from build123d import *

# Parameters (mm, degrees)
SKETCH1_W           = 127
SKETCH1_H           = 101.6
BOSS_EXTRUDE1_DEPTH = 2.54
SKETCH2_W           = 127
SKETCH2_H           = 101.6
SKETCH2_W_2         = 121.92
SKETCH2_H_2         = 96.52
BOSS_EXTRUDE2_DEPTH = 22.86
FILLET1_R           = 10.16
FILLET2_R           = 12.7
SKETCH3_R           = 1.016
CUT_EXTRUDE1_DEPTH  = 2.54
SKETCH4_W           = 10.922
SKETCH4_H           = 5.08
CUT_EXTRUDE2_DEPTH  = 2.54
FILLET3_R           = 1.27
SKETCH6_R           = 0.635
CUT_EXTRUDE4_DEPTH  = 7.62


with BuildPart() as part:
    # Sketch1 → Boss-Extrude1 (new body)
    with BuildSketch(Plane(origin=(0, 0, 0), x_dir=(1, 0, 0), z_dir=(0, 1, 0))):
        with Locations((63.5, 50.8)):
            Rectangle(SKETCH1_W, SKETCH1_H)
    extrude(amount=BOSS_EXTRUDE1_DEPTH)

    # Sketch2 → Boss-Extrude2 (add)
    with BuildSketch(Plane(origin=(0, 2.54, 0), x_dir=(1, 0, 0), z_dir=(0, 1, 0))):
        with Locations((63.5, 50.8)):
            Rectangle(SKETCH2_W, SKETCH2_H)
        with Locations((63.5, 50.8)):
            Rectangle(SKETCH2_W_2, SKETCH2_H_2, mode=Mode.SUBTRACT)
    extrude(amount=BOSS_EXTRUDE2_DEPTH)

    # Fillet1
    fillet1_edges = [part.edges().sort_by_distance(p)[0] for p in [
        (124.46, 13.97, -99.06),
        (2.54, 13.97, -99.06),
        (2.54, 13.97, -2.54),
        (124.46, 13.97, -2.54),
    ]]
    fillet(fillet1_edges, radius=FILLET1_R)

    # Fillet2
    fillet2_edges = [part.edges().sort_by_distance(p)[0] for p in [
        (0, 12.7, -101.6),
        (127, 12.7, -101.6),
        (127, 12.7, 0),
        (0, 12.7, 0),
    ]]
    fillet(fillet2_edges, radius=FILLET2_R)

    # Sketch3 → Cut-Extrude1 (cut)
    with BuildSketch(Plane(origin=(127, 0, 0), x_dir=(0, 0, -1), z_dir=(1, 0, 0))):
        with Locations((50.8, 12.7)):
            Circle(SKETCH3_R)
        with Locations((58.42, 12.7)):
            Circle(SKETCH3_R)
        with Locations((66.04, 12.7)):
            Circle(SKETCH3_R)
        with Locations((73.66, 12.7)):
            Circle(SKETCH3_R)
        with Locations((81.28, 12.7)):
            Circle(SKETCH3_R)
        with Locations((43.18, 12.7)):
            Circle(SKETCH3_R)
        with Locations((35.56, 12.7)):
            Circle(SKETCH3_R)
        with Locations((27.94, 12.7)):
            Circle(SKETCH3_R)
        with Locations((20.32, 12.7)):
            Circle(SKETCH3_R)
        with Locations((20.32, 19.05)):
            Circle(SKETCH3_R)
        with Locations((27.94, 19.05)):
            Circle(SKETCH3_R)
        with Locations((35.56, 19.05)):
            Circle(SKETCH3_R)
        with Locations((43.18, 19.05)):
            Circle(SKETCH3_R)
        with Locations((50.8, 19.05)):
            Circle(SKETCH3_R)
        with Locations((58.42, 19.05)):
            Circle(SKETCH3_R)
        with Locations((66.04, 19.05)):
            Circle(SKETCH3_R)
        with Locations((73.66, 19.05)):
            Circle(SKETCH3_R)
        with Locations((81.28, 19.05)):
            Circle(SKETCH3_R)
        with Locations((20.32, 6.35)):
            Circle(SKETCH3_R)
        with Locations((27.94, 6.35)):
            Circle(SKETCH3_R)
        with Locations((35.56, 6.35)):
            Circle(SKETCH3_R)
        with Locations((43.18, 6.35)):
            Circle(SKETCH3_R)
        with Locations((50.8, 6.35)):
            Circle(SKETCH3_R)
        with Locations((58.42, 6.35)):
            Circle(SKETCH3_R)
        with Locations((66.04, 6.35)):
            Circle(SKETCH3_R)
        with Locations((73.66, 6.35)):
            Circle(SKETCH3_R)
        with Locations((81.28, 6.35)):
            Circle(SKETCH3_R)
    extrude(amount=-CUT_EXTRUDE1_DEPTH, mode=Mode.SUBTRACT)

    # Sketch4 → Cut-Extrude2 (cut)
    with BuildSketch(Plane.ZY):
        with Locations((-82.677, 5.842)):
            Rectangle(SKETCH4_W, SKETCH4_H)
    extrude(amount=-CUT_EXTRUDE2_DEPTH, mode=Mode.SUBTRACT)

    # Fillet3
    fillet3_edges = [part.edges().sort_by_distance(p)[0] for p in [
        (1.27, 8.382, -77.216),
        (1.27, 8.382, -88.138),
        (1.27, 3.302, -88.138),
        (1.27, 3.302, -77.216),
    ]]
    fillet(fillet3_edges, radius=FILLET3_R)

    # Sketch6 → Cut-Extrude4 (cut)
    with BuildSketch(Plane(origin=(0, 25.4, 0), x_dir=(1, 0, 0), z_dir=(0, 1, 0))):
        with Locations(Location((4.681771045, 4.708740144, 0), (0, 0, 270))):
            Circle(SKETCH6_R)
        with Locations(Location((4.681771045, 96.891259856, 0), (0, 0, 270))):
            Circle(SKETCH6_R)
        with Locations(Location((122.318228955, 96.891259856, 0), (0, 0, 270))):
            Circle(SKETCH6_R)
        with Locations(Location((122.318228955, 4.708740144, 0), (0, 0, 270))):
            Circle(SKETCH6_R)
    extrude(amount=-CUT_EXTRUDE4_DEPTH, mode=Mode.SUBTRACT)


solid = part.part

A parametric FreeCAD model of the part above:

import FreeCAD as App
import Part
import Sketcher
Q = App.Units.Quantity


def edges_at(feature, points):
    """Names of the edges that pass closest to the given points."""
    edges = feature.Shape.Edges
    near = lambda p: min(range(len(edges)), key=lambda i: edges[i].distToShape(Part.Vertex(*p))[0])
    return sorted({f"Edge{near(p) + 1}" for p in points})

doc = App.newDocument("Part")
body = doc.addObject("PartDesign::Body", "Body")

# Sketch on XZ plane
sketch1 = body.newObject("Sketcher::SketchObject", "Sketch")
sketch1.AttachmentSupport = (doc.getObject("XZ_Plane"), [""])
sketch1.MapMode = "FlatFace"
sketch1.addGeometry(Part.LineSegment(App.Vector(0, -101.6, 0), App.Vector(0, 0, 0)), False)
sketch1.addGeometry(Part.LineSegment(App.Vector(0, 0, 0), App.Vector(127, 0, 0)), False)
sketch1.addGeometry(Part.LineSegment(App.Vector(127, 0, 0), App.Vector(127, -101.6, 0)), False)
sketch1.addGeometry(Part.LineSegment(App.Vector(127, -101.6, 0), App.Vector(0, -101.6, 0)), False)
sketch1.addConstraint(Sketcher.Constraint("Coincident", 0, 2, 1, 1))
sketch1.addConstraint(Sketcher.Constraint("Coincident", 1, 2, 2, 1))
sketch1.addConstraint(Sketcher.Constraint("Coincident", 2, 2, 3, 1))
sketch1.addConstraint(Sketcher.Constraint("Coincident", 3, 2, 0, 1))
sketch1.addConstraint(Sketcher.Constraint("Vertical", 0))
sketch1.addConstraint(Sketcher.Constraint("Horizontal", 1))
sketch1.addConstraint(Sketcher.Constraint("Vertical", 2))
sketch1.addConstraint(Sketcher.Constraint("Horizontal", 3))
sketch1.addConstraint(Sketcher.Constraint("Coincident", 0, 2, -1, 1))
sketch1.addConstraint(Sketcher.Constraint("DistanceX", 1, 1, 1, 2, Q("5 in")))
sketch1.addConstraint(Sketcher.Constraint("DistanceY", 0, 1, 0, 2, Q("4 in")))
pad1 = body.newObject("PartDesign::Pad", "Pad")
pad1.Profile = sketch1
pad1.Length = Q("0.1 in")
pad1.Reversed = True

# Sketch on XZ plane
sketch2 = body.newObject("Sketcher::SketchObject", "Sketch001")
sketch2.AttachmentSupport = (doc.getObject("XZ_Plane"), [""])
sketch2.MapMode = "FlatFace"
sketch2.AttachmentOffset = App.Placement(App.Vector(0, 0, -0.1 * 25.4), App.Rotation())
sketch2.addGeometry(Part.LineSegment(App.Vector(0, -101.6, 0), App.Vector(0, 0, 0)), False)
sketch2.addGeometry(Part.LineSegment(App.Vector(0, 0, 0), App.Vector(127, 0, 0)), False)
sketch2.addGeometry(Part.LineSegment(App.Vector(127, 0, 0), App.Vector(127, -101.6, 0)), False)
sketch2.addGeometry(Part.LineSegment(App.Vector(127, -101.6, 0), App.Vector(0, -101.6, 0)), False)
sketch2.addGeometry(Part.LineSegment(App.Vector(124.46, -2.54, 0), App.Vector(2.54, -2.54, 0)), False)
sketch2.addGeometry(Part.LineSegment(App.Vector(2.54, -2.54, 0), App.Vector(2.54, -99.06, 0)), False)
sketch2.addGeometry(Part.LineSegment(App.Vector(2.54, -99.06, 0), App.Vector(124.46, -99.06, 0)), False)
sketch2.addGeometry(Part.LineSegment(App.Vector(124.46, -99.06, 0), App.Vector(124.46, -2.54, 0)), False)
sketch2.addConstraint(Sketcher.Constraint("Coincident", 0, 2, 1, 1))
sketch2.addConstraint(Sketcher.Constraint("Coincident", 1, 2, 2, 1))
sketch2.addConstraint(Sketcher.Constraint("Coincident", 2, 2, 3, 1))
sketch2.addConstraint(Sketcher.Constraint("Coincident", 3, 2, 0, 1))
sketch2.addConstraint(Sketcher.Constraint("Coincident", 4, 2, 5, 1))
sketch2.addConstraint(Sketcher.Constraint("Coincident", 5, 2, 6, 1))
sketch2.addConstraint(Sketcher.Constraint("Coincident", 6, 2, 7, 1))
sketch2.addConstraint(Sketcher.Constraint("Coincident", 7, 2, 4, 1))
sketch2.addConstraint(Sketcher.Constraint("Vertical", 0))
sketch2.addConstraint(Sketcher.Constraint("Horizontal", 1))
sketch2.addConstraint(Sketcher.Constraint("Vertical", 2))
sketch2.addConstraint(Sketcher.Constraint("Horizontal", 3))
sketch2.addConstraint(Sketcher.Constraint("Horizontal", 4))
sketch2.addConstraint(Sketcher.Constraint("Vertical", 5))
sketch2.addConstraint(Sketcher.Constraint("Horizontal", 6))
sketch2.addConstraint(Sketcher.Constraint("Vertical", 7))
sketch2.addConstraint(Sketcher.Constraint("Coincident", 0, 2, -1, 1))
sketch2.addConstraint(Sketcher.Constraint("DistanceX", 1, 1, 1, 2, Q("5 in")))
sketch2.addConstraint(Sketcher.Constraint("DistanceY", 0, 1, 0, 2, Q("4 in")))
sketch2.addConstraint(Sketcher.Constraint("DistanceX", 4, 2, 4, 1, Q("4.8 in")))
sketch2.addConstraint(Sketcher.Constraint("DistanceY", 5, 2, 5, 1, Q("3.8 in")))
sketch2.addConstraint(Sketcher.Constraint("DistanceX", -1, 1, 4, 2, Q("0.1 in")))
sketch2.addConstraint(Sketcher.Constraint("DistanceY", 4, 2, -1, 1, Q("0.1 in")))
pad2 = body.newObject("PartDesign::Pad", "Pad001")
pad2.Profile = sketch2
pad2.Length = Q("0.9 in")
pad2.Reversed = True
doc.recompute()

fillet = body.newObject("PartDesign::Fillet", "Fillet")
fillet.Base = (pad2, edges_at(pad2, [
    (124.46, 13.97, -99.06),
    (2.54, 13.97, -99.06),
    (2.54, 13.97, -2.54),
    (124.46, 13.97, -2.54),
]))
fillet.Radius = Q("0.4 in")
doc.recompute()

fillet2 = body.newObject("PartDesign::Fillet", "Fillet001")
fillet2.Base = (fillet, edges_at(fillet, [
    (0, 12.7, -101.6),
    (127, 12.7, -101.6),
    (127, 12.7, 0),
    (0, 12.7, 0),
]))
fillet2.Radius = Q("0.5 in")

# Sketch on YZ plane
sketch3 = body.newObject("Sketcher::SketchObject", "Sketch002")
sketch3.AttachmentSupport = (doc.getObject("YZ_Plane"), [""])
sketch3.MapMode = "FlatFace"
sketch3.AttachmentOffset = App.Placement(App.Vector(0, 0, 5 * 25.4), App.Rotation())
sketch3.addGeometry(Part.Circle(App.Vector(12.7, -50.8, 0), App.Vector(0, 0, 1), 1.016), False)
sketch3.addGeometry(Part.Circle(App.Vector(12.7, -58.42, 0), App.Vector(0, 0, 1), 1.016), False)
sketch3.addGeometry(Part.Circle(App.Vector(12.7, -66.04, 0), App.Vector(0, 0, 1), 1.016), False)
sketch3.addGeometry(Part.Circle(App.Vector(12.7, -73.66, 0), App.Vector(0, 0, 1), 1.016), False)
sketch3.addGeometry(Part.Circle(App.Vector(12.7, -81.28, 0), App.Vector(0, 0, 1), 1.016), False)
sketch3.addGeometry(Part.Circle(App.Vector(12.7, -43.18, 0), App.Vector(0, 0, 1), 1.016), False)
sketch3.addGeometry(Part.Circle(App.Vector(12.7, -35.56, 0), App.Vector(0, 0, 1), 1.016), False)
sketch3.addGeometry(Part.Circle(App.Vector(12.7, -27.94, 0), App.Vector(0, 0, 1), 1.016), False)
sketch3.addGeometry(Part.Circle(App.Vector(12.7, -20.32, 0), App.Vector(0, 0, 1), 1.016), False)
sketch3.addGeometry(Part.Circle(App.Vector(19.05, -20.32, 0), App.Vector(0, 0, 1), 1.016), False)
sketch3.addGeometry(Part.Circle(App.Vector(19.05, -27.94, 0), App.Vector(0, 0, 1), 1.016), False)
sketch3.addGeometry(Part.Circle(App.Vector(19.05, -35.56, 0), App.Vector(0, 0, 1), 1.016), False)
sketch3.addGeometry(Part.Circle(App.Vector(19.05, -43.18, 0), App.Vector(0, 0, 1), 1.016), False)
sketch3.addGeometry(Part.Circle(App.Vector(19.05, -50.8, 0), App.Vector(0, 0, 1), 1.016), False)
sketch3.addGeometry(Part.Circle(App.Vector(19.05, -58.42, 0), App.Vector(0, 0, 1), 1.016), False)
sketch3.addGeometry(Part.Circle(App.Vector(19.05, -66.04, 0), App.Vector(0, 0, 1), 1.016), False)
sketch3.addGeometry(Part.Circle(App.Vector(19.05, -73.66, 0), App.Vector(0, 0, 1), 1.016), False)
sketch3.addGeometry(Part.Circle(App.Vector(19.05, -81.28, 0), App.Vector(0, 0, 1), 1.016), False)
sketch3.addGeometry(Part.Circle(App.Vector(6.35, -20.32, 0), App.Vector(0, 0, 1), 1.016), False)
sketch3.addGeometry(Part.Circle(App.Vector(6.35, -27.94, 0), App.Vector(0, 0, 1), 1.016), False)
sketch3.addGeometry(Part.Circle(App.Vector(6.35, -35.56, 0), App.Vector(0, 0, 1), 1.016), False)
sketch3.addGeometry(Part.Circle(App.Vector(6.35, -43.18, 0), App.Vector(0, 0, 1), 1.016), False)
sketch3.addGeometry(Part.Circle(App.Vector(6.35, -50.8, 0), App.Vector(0, 0, 1), 1.016), False)
sketch3.addGeometry(Part.Circle(App.Vector(6.35, -58.42, 0), App.Vector(0, 0, 1), 1.016), False)
sketch3.addGeometry(Part.Circle(App.Vector(6.35, -66.04, 0), App.Vector(0, 0, 1), 1.016), False)
sketch3.addGeometry(Part.Circle(App.Vector(6.35, -73.66, 0), App.Vector(0, 0, 1), 1.016), False)
sketch3.addGeometry(Part.Circle(App.Vector(6.35, -81.28, 0), App.Vector(0, 0, 1), 1.016), False)
sketch3.addConstraint(Sketcher.Constraint("Equal", 0, 1))
sketch3.addConstraint(Sketcher.Constraint("Equal", 1, 2))
sketch3.addConstraint(Sketcher.Constraint("Equal", 2, 3))
sketch3.addConstraint(Sketcher.Constraint("Equal", 3, 4))
sketch3.addConstraint(Sketcher.Constraint("Equal", 4, 5))
sketch3.addConstraint(Sketcher.Constraint("Equal", 5, 6))
sketch3.addConstraint(Sketcher.Constraint("Equal", 6, 7))
sketch3.addConstraint(Sketcher.Constraint("Equal", 7, 8))
sketch3.addConstraint(Sketcher.Constraint("Equal", 8, 9))
sketch3.addConstraint(Sketcher.Constraint("Equal", 9, 10))
sketch3.addConstraint(Sketcher.Constraint("Equal", 10, 11))
sketch3.addConstraint(Sketcher.Constraint("Equal", 11, 12))
sketch3.addConstraint(Sketcher.Constraint("Equal", 12, 13))
sketch3.addConstraint(Sketcher.Constraint("Equal", 13, 14))
sketch3.addConstraint(Sketcher.Constraint("Equal", 14, 15))
sketch3.addConstraint(Sketcher.Constraint("Equal", 15, 16))
sketch3.addConstraint(Sketcher.Constraint("Equal", 16, 17))
sketch3.addConstraint(Sketcher.Constraint("Equal", 17, 18))
sketch3.addConstraint(Sketcher.Constraint("Equal", 18, 19))
sketch3.addConstraint(Sketcher.Constraint("Equal", 19, 20))
sketch3.addConstraint(Sketcher.Constraint("Equal", 20, 21))
sketch3.addConstraint(Sketcher.Constraint("Equal", 21, 22))
sketch3.addConstraint(Sketcher.Constraint("Equal", 22, 23))
sketch3.addConstraint(Sketcher.Constraint("Equal", 23, 24))
sketch3.addConstraint(Sketcher.Constraint("Equal", 24, 25))
sketch3.addConstraint(Sketcher.Constraint("Equal", 25, 26))
sketch3.addConstraint(Sketcher.Constraint("Horizontal", 8, 3, 9, 3))
sketch3.addConstraint(Sketcher.Constraint("Horizontal", 7, 3, 10, 3))
sketch3.addConstraint(Sketcher.Constraint("Horizontal", 6, 3, 11, 3))
sketch3.addConstraint(Sketcher.Constraint("Horizontal", 5, 3, 12, 3))
sketch3.addConstraint(Sketcher.Constraint("Horizontal", 0, 3, 13, 3))
sketch3.addConstraint(Sketcher.Constraint("Horizontal", 1, 3, 14, 3))
sketch3.addConstraint(Sketcher.Constraint("Horizontal", 2, 3, 15, 3))
sketch3.addConstraint(Sketcher.Constraint("Horizontal", 3, 3, 16, 3))
sketch3.addConstraint(Sketcher.Constraint("Horizontal", 4, 3, 17, 3))
sketch3.addConstraint(Sketcher.Constraint("Horizontal", 9, 3, 18, 3))
sketch3.addConstraint(Sketcher.Constraint("Horizontal", 10, 3, 19, 3))
sketch3.addConstraint(Sketcher.Constraint("Horizontal", 11, 3, 20, 3))
sketch3.addConstraint(Sketcher.Constraint("Horizontal", 12, 3, 21, 3))
sketch3.addConstraint(Sketcher.Constraint("Horizontal", 13, 3, 22, 3))
sketch3.addConstraint(Sketcher.Constraint("Horizontal", 14, 3, 23, 3))
sketch3.addConstraint(Sketcher.Constraint("Horizontal", 15, 3, 24, 3))
sketch3.addConstraint(Sketcher.Constraint("Horizontal", 16, 3, 25, 3))
sketch3.addConstraint(Sketcher.Constraint("Horizontal", 17, 3, 26, 3))
sketch3.addConstraint(Sketcher.Constraint("Vertical", 0, 3, 1, 3))
sketch3.addConstraint(Sketcher.Constraint("Vertical", 1, 3, 2, 3))
sketch3.addConstraint(Sketcher.Constraint("Vertical", 2, 3, 3, 3))
sketch3.addConstraint(Sketcher.Constraint("Vertical", 3, 3, 4, 3))
sketch3.addConstraint(Sketcher.Constraint("Vertical", 4, 3, 5, 3))
sketch3.addConstraint(Sketcher.Constraint("Vertical", 5, 3, 6, 3))
sketch3.addConstraint(Sketcher.Constraint("Vertical", 6, 3, 7, 3))
sketch3.addConstraint(Sketcher.Constraint("Vertical", 7, 3, 8, 3))
sketch3.addConstraint(Sketcher.Constraint("Vertical", 9, 3, 10, 3))
sketch3.addConstraint(Sketcher.Constraint("Vertical", 10, 3, 11, 3))
sketch3.addConstraint(Sketcher.Constraint("Vertical", 11, 3, 12, 3))
sketch3.addConstraint(Sketcher.Constraint("Vertical", 12, 3, 13, 3))
sketch3.addConstraint(Sketcher.Constraint("Vertical", 13, 3, 14, 3))
sketch3.addConstraint(Sketcher.Constraint("Vertical", 14, 3, 15, 3))
sketch3.addConstraint(Sketcher.Constraint("Vertical", 15, 3, 16, 3))
sketch3.addConstraint(Sketcher.Constraint("Vertical", 16, 3, 17, 3))
sketch3.addConstraint(Sketcher.Constraint("Vertical", 18, 3, 19, 3))
sketch3.addConstraint(Sketcher.Constraint("Vertical", 19, 3, 20, 3))
sketch3.addConstraint(Sketcher.Constraint("Vertical", 20, 3, 21, 3))
sketch3.addConstraint(Sketcher.Constraint("Vertical", 21, 3, 22, 3))
sketch3.addConstraint(Sketcher.Constraint("Vertical", 22, 3, 23, 3))
sketch3.addConstraint(Sketcher.Constraint("Vertical", 23, 3, 24, 3))
sketch3.addConstraint(Sketcher.Constraint("Vertical", 24, 3, 25, 3))
sketch3.addConstraint(Sketcher.Constraint("Vertical", 25, 3, 26, 3))
sketch3.addConstraint(Sketcher.Constraint("Diameter", 0, Q("0.08 in")))
sketch3.addConstraint(Sketcher.Constraint("DistanceY", 0, 3, -1, 1, Q("2 in")))
sketch3.addConstraint(Sketcher.Constraint("DistanceX", -1, 1, 0, 3, Q("0.5 in")))
sketch3.addConstraint(Sketcher.Constraint("DistanceY", 1, 3, -1, 1, Q("2.3 in")))
sketch3.addConstraint(Sketcher.Constraint("DistanceY", 2, 3, -1, 1, Q("2.6 in")))
sketch3.addConstraint(Sketcher.Constraint("DistanceY", 3, 3, -1, 1, Q("2.9 in")))
sketch3.addConstraint(Sketcher.Constraint("DistanceY", 4, 3, -1, 1, Q("3.2 in")))
sketch3.addConstraint(Sketcher.Constraint("DistanceY", 5, 3, -1, 1, Q("1.7 in")))
sketch3.addConstraint(Sketcher.Constraint("DistanceY", 6, 3, -1, 1, Q("1.4 in")))
sketch3.addConstraint(Sketcher.Constraint("DistanceY", 7, 3, -1, 1, Q("1.1 in")))
sketch3.addConstraint(Sketcher.Constraint("DistanceY", 8, 3, -1, 1, Q("0.8 in")))
sketch3.addConstraint(Sketcher.Constraint("DistanceX", 18, 3, 9, 3, Q("0.5 in")))
sketch3.addConstraint(Sketcher.Constraint("DistanceX", -1, 1, 9, 3, Q("0.75 in")))
pocket1 = body.newObject("PartDesign::Pocket", "Pocket")
pocket1.Profile = sketch3
pocket1.Length = Q("0.1 in")

# Sketch on YZ plane
sketch4 = body.newObject("Sketcher::SketchObject", "Sketch003")
sketch4.AttachmentSupport = (doc.getObject("YZ_Plane"), [""])
sketch4.MapMode = "FlatFace"
sketch4.addGeometry(Part.LineSegment(App.Vector(8.382, -88.138, 0), App.Vector(3.302, -88.138, 0)), False)
sketch4.addGeometry(Part.LineSegment(App.Vector(3.302, -88.138, 0), App.Vector(3.302, -77.216, 0)), False)
sketch4.addGeometry(Part.LineSegment(App.Vector(3.302, -77.216, 0), App.Vector(8.382, -77.216, 0)), False)
sketch4.addGeometry(Part.LineSegment(App.Vector(8.382, -77.216, 0), App.Vector(8.382, -88.138, 0)), False)
sketch4.addConstraint(Sketcher.Constraint("Coincident", 0, 2, 1, 1))
sketch4.addConstraint(Sketcher.Constraint("Coincident", 1, 2, 2, 1))
sketch4.addConstraint(Sketcher.Constraint("Coincident", 2, 2, 3, 1))
sketch4.addConstraint(Sketcher.Constraint("Coincident", 3, 2, 0, 1))
sketch4.addConstraint(Sketcher.Constraint("Horizontal", 0))
sketch4.addConstraint(Sketcher.Constraint("Vertical", 1))
sketch4.addConstraint(Sketcher.Constraint("Horizontal", 2))
sketch4.addConstraint(Sketcher.Constraint("Vertical", 3))
sketch4.addConstraint(Sketcher.Constraint("DistanceX", 0, 2, 0, 1, Q("0.2 in")))
sketch4.addConstraint(Sketcher.Constraint("DistanceY", 1, 1, 1, 2, Q("0.43 in")))
sketch4.addConstraint(Sketcher.Constraint("DistanceX", -1, 1, 0, 2, Q("0.13 in")))
sketch4.addConstraint(Sketcher.Constraint("DistanceY", 0, 2, -1, 1, Q("3.47 in")))
pocket2 = body.newObject("PartDesign::Pocket", "Pocket001")
pocket2.Profile = sketch4
pocket2.Length = Q("0.1 in")
pocket2.Reversed = True
doc.recompute()

fillet3 = body.newObject("PartDesign::Fillet", "Fillet002")
fillet3.Base = (pocket2, edges_at(pocket2, [
    (1.27, 8.382, -77.216),
    (1.27, 8.382, -88.138),
    (1.27, 3.302, -88.138),
    (1.27, 3.302, -77.216),
]))
fillet3.Radius = Q("0.05 in")

# Sketch on XZ plane
sketch5 = body.newObject("Sketcher::SketchObject", "Sketch004")
sketch5.AttachmentSupport = (doc.getObject("XZ_Plane"), [""])
sketch5.MapMode = "FlatFace"
sketch5.AttachmentOffset = App.Placement(App.Vector(0, 0, -1 * 25.4), App.Rotation())
sketch5.addGeometry(Part.Circle(App.Vector(4.681771, -4.70874, 0), App.Vector(0, 0, 1), 0.635), False)
sketch5.addGeometry(Part.Circle(App.Vector(4.681771, -96.89126, 0), App.Vector(0, 0, 1), 0.635), False)
sketch5.addGeometry(Part.Circle(App.Vector(122.318229, -96.89126, 0), App.Vector(0, 0, 1), 0.635), False)
sketch5.addGeometry(Part.Circle(App.Vector(122.318229, -4.70874, 0), App.Vector(0, 0, 1), 0.635), False)
sketch5.addConstraint(Sketcher.Constraint("Equal", 0, 1))
sketch5.addConstraint(Sketcher.Constraint("Equal", 1, 2))
sketch5.addConstraint(Sketcher.Constraint("Equal", 2, 3))
sketch5.addConstraint(Sketcher.Constraint("Horizontal", 1, 3, 2, 3))
sketch5.addConstraint(Sketcher.Constraint("Horizontal", 0, 3, 3, 3))
sketch5.addConstraint(Sketcher.Constraint("Vertical", 0, 3, 1, 3))
sketch5.addConstraint(Sketcher.Constraint("Vertical", 2, 3, 3, 3))
sketch5.addConstraint(Sketcher.Constraint("Diameter", 0, Q("0.05 in")))
sketch5.addConstraint(Sketcher.Constraint("DistanceX", -1, 1, 0, 3, Q("4.681771 mm")))
sketch5.addConstraint(Sketcher.Constraint("DistanceY", 0, 3, -1, 1, Q("4.70874 mm")))
sketch5.addConstraint(Sketcher.Constraint("DistanceY", 1, 3, -1, 1, Q("96.89126 mm")))
sketch5.addConstraint(Sketcher.Constraint("DistanceX", -1, 1, 2, 3, Q("122.318229 mm")))
pocket3 = body.newObject("PartDesign::Pocket", "Pocket002")
pocket3.Profile = sketch5
pocket3.Length = Q("0.3 in")
pocket3.Reversed = True

doc.recompute()
